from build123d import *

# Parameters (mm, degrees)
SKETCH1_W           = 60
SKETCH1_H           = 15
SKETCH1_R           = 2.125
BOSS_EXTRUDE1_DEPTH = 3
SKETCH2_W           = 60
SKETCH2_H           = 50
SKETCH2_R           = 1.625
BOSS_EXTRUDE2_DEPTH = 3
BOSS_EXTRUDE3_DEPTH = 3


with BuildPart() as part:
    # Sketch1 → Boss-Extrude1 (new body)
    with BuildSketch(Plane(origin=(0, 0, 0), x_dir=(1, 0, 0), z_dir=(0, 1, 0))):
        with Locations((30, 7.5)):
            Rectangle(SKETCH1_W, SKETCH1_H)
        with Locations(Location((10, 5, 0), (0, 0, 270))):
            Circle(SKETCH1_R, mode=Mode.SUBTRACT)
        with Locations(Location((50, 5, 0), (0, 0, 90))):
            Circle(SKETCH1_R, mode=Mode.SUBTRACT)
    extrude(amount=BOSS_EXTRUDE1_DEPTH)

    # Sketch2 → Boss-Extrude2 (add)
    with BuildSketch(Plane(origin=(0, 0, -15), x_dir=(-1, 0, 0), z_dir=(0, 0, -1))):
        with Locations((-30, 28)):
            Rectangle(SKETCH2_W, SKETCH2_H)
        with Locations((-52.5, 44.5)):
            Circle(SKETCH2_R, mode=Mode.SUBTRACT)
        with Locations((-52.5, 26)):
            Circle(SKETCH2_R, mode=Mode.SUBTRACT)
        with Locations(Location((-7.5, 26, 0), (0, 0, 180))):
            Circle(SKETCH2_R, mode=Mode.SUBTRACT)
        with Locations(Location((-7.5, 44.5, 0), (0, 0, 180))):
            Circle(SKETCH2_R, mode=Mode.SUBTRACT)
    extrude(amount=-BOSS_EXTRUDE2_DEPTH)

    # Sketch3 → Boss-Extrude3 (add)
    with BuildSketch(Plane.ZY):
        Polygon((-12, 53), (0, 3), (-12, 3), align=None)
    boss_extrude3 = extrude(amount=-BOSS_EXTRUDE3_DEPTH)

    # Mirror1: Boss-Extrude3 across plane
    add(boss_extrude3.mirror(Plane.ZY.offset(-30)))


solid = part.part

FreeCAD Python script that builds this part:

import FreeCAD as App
import Part
import Sketcher

V = App.Vector


def add_polygon(sketch, points):
    """Adds a closed chain of lines whose ends are joined by coincident constraints."""
    first, n = sketch.GeometryCount, len(points)
    for a, b in zip(points, points[1:] + points[:1]):
        sketch.addGeometry(Part.LineSegment(App.Vector(*a, 0), App.Vector(*b, 0)), False)
    for i in range(n):
        sketch.addConstraint(Sketcher.Constraint("Coincident", first + i, 2, first + (i + 1) % n, 1))

doc = App.newDocument("Part")
params = doc.addObject("Spreadsheet::Sheet", "Params")
for row, (alias, value) in enumerate([
    ("sketch1_diameter", "4.25 mm"),
    ("sketch1_width", "60 mm"),
    ("sketch1_height", "15 mm"),
    ("pad1_length", "3 mm"),
    ("sketch2_diameter", "3.25 mm"),
    ("sketch2_width", "60 mm"),
    ("sketch2_height", "50 mm"),
    ("pad2_length", "3 mm"),
    ("sketch3_width", "50 mm"),
    ("sketch3_height", "12 mm"),
    ("pad3_length", "3 mm"),
], start=1):
    params.set(f"A{row}", alias)
    params.set(f"B{row}", "=" + value)
    params.setAlias(f"B{row}", alias)

body = doc.addObject("PartDesign::Body", "Body")

sketch1 = doc.addObject("Sketcher::SketchObject", "Sketch")
body.addObject(sketch1)
sketch1.AttachmentSupport = (doc.XZ_Plane, [""])
sketch1.MapMode = "FlatFace"
add_polygon(sketch1, [(0, -15), (0, 0), (60, 0), (60, -15)])
sketch1.addGeometry(Part.Circle(V(10, -5, 0), V(0, 0, 1), 2.1), False)
sketch1.addGeometry(Part.Circle(V(50, -5, 0), V(0, 0, 1), 2.1), False)
sketch1.addConstraint([
    Sketcher.Constraint("Vertical", 0),
    Sketcher.Constraint("Horizontal", 1),
    Sketcher.Constraint("Vertical", 2),
    Sketcher.Constraint("Horizontal", 3),
    Sketcher.Constraint("Coincident", 0, 2, -1, 1),
    Sketcher.Constraint("Equal", 4, 5),
    Sketcher.Constraint("Horizontal", 4, 3, 5, 3),
    Sketcher.Constraint("Diameter", 4, 4.25),
    Sketcher.Constraint("DistanceX", 1, 1, 1, 2, 60.0),
    Sketcher.Constraint("DistanceY", 0, 1, 0, 2, 15.0),
    Sketcher.Constraint("DistanceX", -1, 1, 4, 3, 10.0),
    Sketcher.Constraint("DistanceY", 4, 3, -1, 1, 5.0),
    Sketcher.Constraint("DistanceX", -1, 1, 5, 3, 50.0),
])
sketch1.setExpression("Constraints[11]", "Params.sketch1_diameter")
sketch1.setExpression("Constraints[12]", "Params.sketch1_width")
sketch1.setExpression("Constraints[13]", "Params.sketch1_height")
pad1 = doc.addObject("PartDesign::Pad", "Pad")
body.addObject(pad1)
pad1.Profile = sketch1
pad1.setExpression("Length", "Params.pad1_length")
pad1.Reversed = True

sketch2 = doc.addObject("Sketcher::SketchObject", "Sketch001")
body.addObject(sketch2)
sketch2.AttachmentSupport = (doc.XY_Plane, [""])
sketch2.MapMode = "FlatFace"
sketch2.AttachmentOffset = App.Placement(V(0, 0, -15), App.Rotation())
add_polygon(sketch2, [(60, 53), (60, 3), (0, 3), (0, 53)])
sketch2.addGeometry(Part.Circle(V(52.5, 26, 0), V(0, 0, 1), 1.6), False)
sketch2.addGeometry(Part.Circle(V(7.5, 26, 0), V(0, 0, 1), 1.6), False)
sketch2.addGeometry(Part.Circle(V(52.5, 44.5, 0), V(0, 0, 1), 1.6), False)
sketch2.addGeometry(Part.Circle(V(7.5, 44.5, 0), V(0, 0, 1), 1.6), False)
sketch2.addConstraint([
    Sketcher.Constraint("Vertical", 0),
    Sketcher.Constraint("Horizontal", 1),
    Sketcher.Constraint("Vertical", 2),
    Sketcher.Constraint("Horizontal", 3),
    Sketcher.Constraint("Equal", 4, 5),
    Sketcher.Constraint("Equal", 5, 6),
    Sketcher.Constraint("Equal", 6, 7),
    Sketcher.Constraint("PointOnObject", 1, 2, -2),
    Sketcher.Constraint("Horizontal", 4, 3, 5, 3),
    Sketcher.Constraint("Horizontal", 6, 3, 7, 3),
    Sketcher.Constraint("Vertical", 4, 3, 6, 3),
    Sketcher.Constraint("Vertical", 5, 3, 7, 3),
    Sketcher.Constraint("Diameter", 4, 3.25),
    Sketcher.Constraint("DistanceX", 1, 2, 1, 1, 60.0),
    Sketcher.Constraint("DistanceY", 0, 2, 0, 1, 50.0),
    Sketcher.Constraint("DistanceY", -1, 1, 4, 3, 26.0),
    Sketcher.Constraint("DistanceY", -1, 1, 0, 2, 3.0),
    Sketcher.Constraint("DistanceX", 5, 3, 4, 3, 45.0),
    Sketcher.Constraint("DistanceX", -1, 1, 4, 3, 52.5),
    Sketcher.Constraint("DistanceY", -1, 1, 6, 3, 44.5),
])
sketch2.setExpression("Constraints[16]", "Params.sketch2_diameter")
sketch2.setExpression("Constraints[17]", "Params.sketch2_width")
sketch2.setExpression("Constraints[18]", "Params.sketch2_height")
pad2 = doc.addObject("PartDesign::Pad", "Pad001")
body.addObject(pad2)
pad2.Profile = sketch2
pad2.setExpression("Length", "Params.pad2_length")

sketch3 = doc.addObject("Sketcher::SketchObject", "Sketch002")
body.addObject(sketch3)
sketch3.AttachmentSupport = (doc.YZ_Plane, [""])
sketch3.MapMode = "FlatFace"
add_polygon(sketch3, [(3, 0), (53, -12), (3, -12)])
sketch3.addConstraint([
    Sketcher.Constraint("Horizontal", 1),
    Sketcher.Constraint("Vertical", 2),
    Sketcher.Constraint("PointOnObject", 2, 2, -1),
    Sketcher.Constraint("DistanceX", 1, 2, 1, 1, 50.0),
    Sketcher.Constraint("DistanceY", 2, 1, 2, 2, 12.0),
    Sketcher.Constraint("DistanceX", -1, 1, 0, 2, 53.0),
])
sketch3.setExpression("Constraints[6]", "Params.sketch3_width")
sketch3.setExpression("Constraints[7]", "Params.sketch3_height")
pad3 = doc.addObject("PartDesign::Pad", "Pad002")
body.addObject(pad3)
pad3.Profile = sketch3
pad3.setExpression("Length", "Params.pad3_length")
doc.recompute()

datumplane = doc.addObject("PartDesign::Plane", "DatumPlane")
body.addObject(datumplane)
datumplane.AttachmentSupport = (doc.YZ_Plane, [""])
datumplane.MapMode = "FlatFace"
datumplane.AttachmentOffset = App.Placement(V(0, 0, 30), App.Rotation())
mirrored = doc.addObject("PartDesign::Mirrored", "Mirrored")
body.addObject(mirrored)
mirrored.Originals = [pad3]
mirrored.MirrorPlane = (datumplane, [""])
body.Tip = mirrored

doc.recompute()
